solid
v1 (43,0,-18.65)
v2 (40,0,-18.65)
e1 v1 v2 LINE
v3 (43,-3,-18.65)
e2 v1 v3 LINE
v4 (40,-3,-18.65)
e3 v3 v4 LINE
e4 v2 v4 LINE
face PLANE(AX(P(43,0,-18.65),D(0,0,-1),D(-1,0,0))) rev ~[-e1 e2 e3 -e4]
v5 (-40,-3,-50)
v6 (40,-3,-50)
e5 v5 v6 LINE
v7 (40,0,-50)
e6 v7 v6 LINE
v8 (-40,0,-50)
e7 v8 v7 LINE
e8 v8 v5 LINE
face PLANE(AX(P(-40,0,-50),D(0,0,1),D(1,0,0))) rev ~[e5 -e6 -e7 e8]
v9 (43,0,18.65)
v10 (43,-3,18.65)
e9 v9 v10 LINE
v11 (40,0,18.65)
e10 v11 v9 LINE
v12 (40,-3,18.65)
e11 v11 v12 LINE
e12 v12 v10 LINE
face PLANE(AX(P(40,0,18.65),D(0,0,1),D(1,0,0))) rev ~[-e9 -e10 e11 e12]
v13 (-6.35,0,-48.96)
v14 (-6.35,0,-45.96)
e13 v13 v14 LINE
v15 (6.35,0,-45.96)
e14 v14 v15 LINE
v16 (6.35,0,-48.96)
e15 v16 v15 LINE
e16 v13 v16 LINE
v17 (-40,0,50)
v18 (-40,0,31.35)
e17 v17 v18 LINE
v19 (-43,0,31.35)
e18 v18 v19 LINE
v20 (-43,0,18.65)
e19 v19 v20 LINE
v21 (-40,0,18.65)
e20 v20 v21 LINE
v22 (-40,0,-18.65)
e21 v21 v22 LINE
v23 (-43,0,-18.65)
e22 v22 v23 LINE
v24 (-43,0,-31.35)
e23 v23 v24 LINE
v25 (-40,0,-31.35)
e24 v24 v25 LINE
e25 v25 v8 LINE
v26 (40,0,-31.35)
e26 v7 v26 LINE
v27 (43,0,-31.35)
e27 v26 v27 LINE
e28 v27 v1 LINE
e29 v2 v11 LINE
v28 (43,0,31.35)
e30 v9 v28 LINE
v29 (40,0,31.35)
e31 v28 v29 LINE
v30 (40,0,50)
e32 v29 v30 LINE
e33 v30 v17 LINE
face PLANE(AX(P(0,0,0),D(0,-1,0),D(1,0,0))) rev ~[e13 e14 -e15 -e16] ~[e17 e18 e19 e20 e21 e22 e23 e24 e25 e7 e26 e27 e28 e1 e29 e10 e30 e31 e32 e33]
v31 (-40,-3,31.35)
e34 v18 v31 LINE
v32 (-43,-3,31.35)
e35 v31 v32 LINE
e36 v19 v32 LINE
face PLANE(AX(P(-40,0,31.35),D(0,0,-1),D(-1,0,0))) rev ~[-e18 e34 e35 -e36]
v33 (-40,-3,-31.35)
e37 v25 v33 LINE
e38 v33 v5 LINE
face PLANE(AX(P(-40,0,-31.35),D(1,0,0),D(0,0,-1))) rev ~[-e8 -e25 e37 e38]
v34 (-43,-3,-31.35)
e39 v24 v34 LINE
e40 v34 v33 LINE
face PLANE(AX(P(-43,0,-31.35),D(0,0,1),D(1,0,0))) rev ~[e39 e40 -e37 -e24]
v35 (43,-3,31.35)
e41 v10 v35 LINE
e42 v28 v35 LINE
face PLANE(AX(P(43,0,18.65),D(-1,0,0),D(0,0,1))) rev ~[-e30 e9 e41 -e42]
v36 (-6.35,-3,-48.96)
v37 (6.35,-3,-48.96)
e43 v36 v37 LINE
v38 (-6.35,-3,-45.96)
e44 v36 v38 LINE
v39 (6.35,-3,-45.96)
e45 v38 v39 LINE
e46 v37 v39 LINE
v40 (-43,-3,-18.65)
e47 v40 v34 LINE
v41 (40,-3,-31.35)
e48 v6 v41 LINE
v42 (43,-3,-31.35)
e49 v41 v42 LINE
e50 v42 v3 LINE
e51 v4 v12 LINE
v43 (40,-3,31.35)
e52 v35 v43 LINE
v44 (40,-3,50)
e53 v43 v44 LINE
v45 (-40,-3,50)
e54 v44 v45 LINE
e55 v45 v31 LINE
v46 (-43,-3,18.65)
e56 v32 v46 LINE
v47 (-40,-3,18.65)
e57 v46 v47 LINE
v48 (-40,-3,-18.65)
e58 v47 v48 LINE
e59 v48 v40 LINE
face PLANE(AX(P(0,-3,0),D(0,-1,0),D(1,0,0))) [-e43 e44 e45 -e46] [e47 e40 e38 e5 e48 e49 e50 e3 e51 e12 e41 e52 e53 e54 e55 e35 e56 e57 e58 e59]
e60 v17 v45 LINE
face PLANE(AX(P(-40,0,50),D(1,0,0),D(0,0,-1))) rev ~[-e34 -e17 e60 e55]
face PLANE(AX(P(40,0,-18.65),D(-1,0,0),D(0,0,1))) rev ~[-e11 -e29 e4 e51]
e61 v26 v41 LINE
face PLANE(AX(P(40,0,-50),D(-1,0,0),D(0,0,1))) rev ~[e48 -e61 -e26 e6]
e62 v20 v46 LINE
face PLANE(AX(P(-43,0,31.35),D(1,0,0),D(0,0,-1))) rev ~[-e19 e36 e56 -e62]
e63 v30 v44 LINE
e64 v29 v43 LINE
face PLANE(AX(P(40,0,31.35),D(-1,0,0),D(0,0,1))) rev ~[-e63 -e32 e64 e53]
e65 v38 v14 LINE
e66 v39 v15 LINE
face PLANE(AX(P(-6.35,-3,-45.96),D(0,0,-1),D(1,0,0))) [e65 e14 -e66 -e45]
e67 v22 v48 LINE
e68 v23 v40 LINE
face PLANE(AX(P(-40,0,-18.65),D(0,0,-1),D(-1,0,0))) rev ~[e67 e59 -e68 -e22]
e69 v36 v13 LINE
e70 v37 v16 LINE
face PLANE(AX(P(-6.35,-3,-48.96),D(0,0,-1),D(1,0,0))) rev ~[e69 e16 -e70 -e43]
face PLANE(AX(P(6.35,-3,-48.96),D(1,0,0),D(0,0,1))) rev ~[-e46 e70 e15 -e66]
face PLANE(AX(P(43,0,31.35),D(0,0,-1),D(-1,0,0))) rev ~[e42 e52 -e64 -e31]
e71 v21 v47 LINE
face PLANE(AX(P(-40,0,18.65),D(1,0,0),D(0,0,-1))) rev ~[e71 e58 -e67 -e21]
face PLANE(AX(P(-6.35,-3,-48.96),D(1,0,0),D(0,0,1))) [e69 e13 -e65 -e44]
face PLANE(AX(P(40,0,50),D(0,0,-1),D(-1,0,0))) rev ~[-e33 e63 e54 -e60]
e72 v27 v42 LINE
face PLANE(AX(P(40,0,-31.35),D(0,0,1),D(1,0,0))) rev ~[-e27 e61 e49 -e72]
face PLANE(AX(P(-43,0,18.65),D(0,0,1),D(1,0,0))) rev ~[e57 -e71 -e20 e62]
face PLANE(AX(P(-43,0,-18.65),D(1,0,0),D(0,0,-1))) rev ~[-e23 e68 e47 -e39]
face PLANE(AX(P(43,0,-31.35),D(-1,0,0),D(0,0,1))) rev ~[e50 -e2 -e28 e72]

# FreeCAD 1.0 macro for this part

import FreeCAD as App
import Part
import Sketcher
from FreeCAD import Vector
Q = App.Units.Quantity

doc = App.newDocument("Part")
params = doc.addObject("Spreadsheet::Sheet", "Params")
for row, (alias, value) in enumerate([
    ("sketch1_width", "80 mm"),
    ("sketch1_width2", "3 mm"),
    ("sketch1_height", "12.7 mm"),
    ("sketch1_height2", "37.3 mm"),
    ("pad1_length", "3 mm"),
    ("sketch2_height", "3 mm"),
    ("sketch2_width", "12.7 mm"),
], start=1):
    params.set(f"A{row}", alias)
    params.set(f"B{row}", "=" + value)
    params.setAlias(f"B{row}", alias)

body = doc.addObject("PartDesign::Body", "Body")

# Sketch on XZ plane
sketch1 = doc.addObject("Sketcher::SketchObject", "Sketch")
body.addObject(sketch1)
sketch1.AttachmentSupport = (doc.XZ_Plane, [""])
sketch1.MapMode = "FlatFace"
sketch1.addGeometry([
    Part.LineSegment(Vector(40, 50, 0), Vector(-40, 50, 0)),  # 0
    Part.LineSegment(Vector(-40, 50, 0), Vector(-40, 31.4, 0)),  # 1
    Part.LineSegment(Vector(-40, 31.4, 0), Vector(-43, 31.4, 0)),  # 2
    Part.LineSegment(Vector(-43, 31.4, 0), Vector(-43, 18.6, 0)),  # 3
    Part.LineSegment(Vector(-43, 18.6, 0), Vector(-40, 18.6, 0)),  # 4
    Part.LineSegment(Vector(-40, 18.6, 0), Vector(-40, -18.6, 0)),  # 5
    Part.LineSegment(Vector(-40, -18.6, 0), Vector(-43, -18.6, 0)),  # 6
    Part.LineSegment(Vector(-43, -18.6, 0), Vector(-43, -31.4, 0)),  # 7
    Part.LineSegment(Vector(-43, -31.4, 0), Vector(-40, -31.4, 0)),  # 8
    Part.LineSegment(Vector(-40, -31.4, 0), Vector(-40, -50, 0)),  # 9
    Part.LineSegment(Vector(-40, -50, 0), Vector(40, -50, 0)),  # 10
    Part.LineSegment(Vector(40, -50, 0), Vector(40, -31.4, 0)),  # 11
    Part.LineSegment(Vector(40, -31.4, 0), Vector(43, -31.4, 0)),  # 12
    Part.LineSegment(Vector(43, -31.4, 0), Vector(43, -18.6, 0)),  # 13
    Part.LineSegment(Vector(43, -18.6, 0), Vector(40, -18.6, 0)),  # 14
    Part.LineSegment(Vector(40, -18.6, 0), Vector(40, 18.6, 0)),  # 15
    Part.LineSegment(Vector(40, 18.6, 0), Vector(43, 18.6, 0)),  # 16
    Part.LineSegment(Vector(43, 18.6, 0), Vector(43, 31.4, 0)),  # 17
    Part.LineSegment(Vector(43, 31.4, 0), Vector(40, 31.4, 0)),  # 18
    Part.LineSegment(Vector(40, 31.4, 0), Vector(40, 50, 0)),  # 19
], False)
sketch1.addConstraint([
    Sketcher.Constraint("Coincident", 0, 2, 1, 1),
    Sketcher.Constraint("Coincident", 1, 2, 2, 1),
    Sketcher.Constraint("Coincident", 2, 2, 3, 1),
    Sketcher.Constraint("Coincident", 3, 2, 4, 1),
    Sketcher.Constraint("Coincident", 4, 2, 5, 1),
    Sketcher.Constraint("Coincident", 5, 2, 6, 1),
    Sketcher.Constraint("Coincident", 6, 2, 7, 1),
    Sketcher.Constraint("Coincident", 7, 2, 8, 1),
    Sketcher.Constraint("Coincident", 8, 2, 9, 1),
    Sketcher.Constraint("Coincident", 9, 2, 10, 1),
    Sketcher.Constraint("Coincident", 10, 2, 11, 1),
    Sketcher.Constraint("Coincident", 11, 2, 12, 1),
    Sketcher.Constraint("Coincident", 12, 2, 13, 1),
    Sketcher.Constraint("Coincident", 13, 2, 14, 1),
    Sketcher.Constraint("Coincident", 14, 2, 15, 1),
    Sketcher.Constraint("Coincident", 15, 2, 16, 1),
    Sketcher.Constraint("Coincident", 16, 2, 17, 1),
    Sketcher.Constraint("Coincident", 17, 2, 18, 1),
    Sketcher.Constraint("Coincident", 18, 2, 19, 1),
    Sketcher.Constraint("Coincident", 19, 2, 0, 1),
    Sketcher.Constraint("Horizontal", 0),
    Sketcher.Constraint("Vertical", 1),
    Sketcher.Constraint("Horizontal", 2),
    Sketcher.Constraint("Vertical", 3),
    Sketcher.Constraint("Horizontal", 4),
    Sketcher.Constraint("Vertical", 5),
    Sketcher.Constraint("Horizontal", 6),
    Sketcher.Constraint("Vertical", 7),
    Sketcher.Constraint("Horizontal", 8),
    Sketcher.Constraint("Vertical", 9),
    Sketcher.Constraint("Horizontal", 10),
    Sketcher.Constraint("Vertical", 11),
    Sketcher.Constraint("Horizontal", 12),
    Sketcher.Constraint("Vertical", 13),
    Sketcher.Constraint("Horizontal", 14),
    Sketcher.Constraint("Vertical", 15),
    Sketcher.Constraint("Horizontal", 16),
    Sketcher.Constraint("Vertical", 17),
    Sketcher.Constraint("Horizontal", 18),
    Sketcher.Constraint("Vertical", 19),
    Sketcher.Constraint("Symmetric", 0, 2, 10, 2, -1, 1),
    Sketcher.Constraint("Symmetric", 2, 2, 12, 2, -1, 1),
    Sketcher.Constraint("Symmetric", 4, 2, 14, 2, -1, 1),
    Sketcher.Constraint("Symmetric", 6, 2, 16, 2, -1, 1),
    Sketcher.Constraint("Symmetric", 8, 2, 18, 2, -1, 1),
    Sketcher.Constraint("Symmetric", 8, 2, 11, 2, -2),
    Sketcher.Constraint("Symmetric", 6, 2, 13, 2, -2),
    Sketcher.Constraint("Vertical", 1, 2, 4, 2),
    Sketcher.Constraint("DistanceX", 0, 2, 0, 1, Q("80 mm")),
    Sketcher.Constraint("DistanceX", 2, 2, 2, 1, Q("3 mm")),
    Sketcher.Constraint("DistanceY", 3, 2, 3, 1, Q("12.7 mm")),
    Sketcher.Constraint("DistanceY", 5, 2, 5, 1, Q("37.3 mm")),
    Sketcher.Constraint("DistanceY", -1, 1, 0, 2, Q("50 mm")),
])
sketch1.setExpression("Constraints[48]", "Params.sketch1_width")
sketch1.setExpression("Constraints[49]", "Params.sketch1_width2")
sketch1.setExpression("Constraints[50]", "Params.sketch1_height")
sketch1.setExpression("Constraints[51]", "Params.sketch1_height2")
pad1 = doc.addObject("PartDesign::Pad", "Pad")
body.addObject(pad1)
pad1.Profile = sketch1
pad1.setExpression("Length", "Params.pad1_length")

# Sketch on XZ plane
sketch2 = doc.addObject("Sketcher::SketchObject", "Sketch001")
body.addObject(sketch2)
sketch2.AttachmentSupport = (doc.XZ_Plane, [""])
sketch2.MapMode = "FlatFace"
sketch2.AttachmentOffset = App.Placement(Vector(0, 0, 3), App.Rotation())
sketch2.addGeometry([
    Part.LineSegment(Vector(-6.3, -46, 0), Vector(-6.3, -49, 0)),
    Part.LineSegment(Vector(-6.3, -49, 0), Vector(6.3, -49, 0)),
    Part.LineSegment(Vector(6.3, -49, 0), Vector(6.3, -46, 0)),
    Part.LineSegment(Vector(6.3, -46, 0), Vector(-6.3, -46, 0)),
], False)
sketch2.addConstraint([
    Sketcher.Constraint("Coincident", 0, 2, 1, 1),
    Sketcher.Constraint("Coincident", 1, 2, 2, 1),
    Sketcher.Constraint("Coincident", 2, 2, 3, 1),
    Sketcher.Constraint("Coincident", 3, 2, 0, 1),
    Sketcher.Constraint("Vertical", 0),
    Sketcher.Constraint("Horizontal", 1),
    Sketcher.Constraint("Vertical", 2),
    Sketcher.Constraint("Horizontal", 3),
    Sketcher.Constraint("DistanceY", 0, 2, 0, 1, Q("3 mm")),
    Sketcher.Constraint("DistanceX", 1, 1, 1, 2, Q("12.7 mm")),
    Sketcher.Constraint("DistanceX", 0, 2, -1, 1, Q("6.35 mm")),
    Sketcher.Constraint("DistanceY", 0, 2, -1, 1, Q("48.96 mm")),
])
sketch2.setExpression("Constraints[8]", "Params.sketch2_height")
sketch2.setExpression("Constraints[9]", "Params.sketch2_width")
pocket1 = doc.addObject("PartDesign::Pocket", "Pocket")
body.addObject(pocket1)
pocket1.Profile = sketch2
pocket1.Type = "ThroughAll"

doc.recompute()
